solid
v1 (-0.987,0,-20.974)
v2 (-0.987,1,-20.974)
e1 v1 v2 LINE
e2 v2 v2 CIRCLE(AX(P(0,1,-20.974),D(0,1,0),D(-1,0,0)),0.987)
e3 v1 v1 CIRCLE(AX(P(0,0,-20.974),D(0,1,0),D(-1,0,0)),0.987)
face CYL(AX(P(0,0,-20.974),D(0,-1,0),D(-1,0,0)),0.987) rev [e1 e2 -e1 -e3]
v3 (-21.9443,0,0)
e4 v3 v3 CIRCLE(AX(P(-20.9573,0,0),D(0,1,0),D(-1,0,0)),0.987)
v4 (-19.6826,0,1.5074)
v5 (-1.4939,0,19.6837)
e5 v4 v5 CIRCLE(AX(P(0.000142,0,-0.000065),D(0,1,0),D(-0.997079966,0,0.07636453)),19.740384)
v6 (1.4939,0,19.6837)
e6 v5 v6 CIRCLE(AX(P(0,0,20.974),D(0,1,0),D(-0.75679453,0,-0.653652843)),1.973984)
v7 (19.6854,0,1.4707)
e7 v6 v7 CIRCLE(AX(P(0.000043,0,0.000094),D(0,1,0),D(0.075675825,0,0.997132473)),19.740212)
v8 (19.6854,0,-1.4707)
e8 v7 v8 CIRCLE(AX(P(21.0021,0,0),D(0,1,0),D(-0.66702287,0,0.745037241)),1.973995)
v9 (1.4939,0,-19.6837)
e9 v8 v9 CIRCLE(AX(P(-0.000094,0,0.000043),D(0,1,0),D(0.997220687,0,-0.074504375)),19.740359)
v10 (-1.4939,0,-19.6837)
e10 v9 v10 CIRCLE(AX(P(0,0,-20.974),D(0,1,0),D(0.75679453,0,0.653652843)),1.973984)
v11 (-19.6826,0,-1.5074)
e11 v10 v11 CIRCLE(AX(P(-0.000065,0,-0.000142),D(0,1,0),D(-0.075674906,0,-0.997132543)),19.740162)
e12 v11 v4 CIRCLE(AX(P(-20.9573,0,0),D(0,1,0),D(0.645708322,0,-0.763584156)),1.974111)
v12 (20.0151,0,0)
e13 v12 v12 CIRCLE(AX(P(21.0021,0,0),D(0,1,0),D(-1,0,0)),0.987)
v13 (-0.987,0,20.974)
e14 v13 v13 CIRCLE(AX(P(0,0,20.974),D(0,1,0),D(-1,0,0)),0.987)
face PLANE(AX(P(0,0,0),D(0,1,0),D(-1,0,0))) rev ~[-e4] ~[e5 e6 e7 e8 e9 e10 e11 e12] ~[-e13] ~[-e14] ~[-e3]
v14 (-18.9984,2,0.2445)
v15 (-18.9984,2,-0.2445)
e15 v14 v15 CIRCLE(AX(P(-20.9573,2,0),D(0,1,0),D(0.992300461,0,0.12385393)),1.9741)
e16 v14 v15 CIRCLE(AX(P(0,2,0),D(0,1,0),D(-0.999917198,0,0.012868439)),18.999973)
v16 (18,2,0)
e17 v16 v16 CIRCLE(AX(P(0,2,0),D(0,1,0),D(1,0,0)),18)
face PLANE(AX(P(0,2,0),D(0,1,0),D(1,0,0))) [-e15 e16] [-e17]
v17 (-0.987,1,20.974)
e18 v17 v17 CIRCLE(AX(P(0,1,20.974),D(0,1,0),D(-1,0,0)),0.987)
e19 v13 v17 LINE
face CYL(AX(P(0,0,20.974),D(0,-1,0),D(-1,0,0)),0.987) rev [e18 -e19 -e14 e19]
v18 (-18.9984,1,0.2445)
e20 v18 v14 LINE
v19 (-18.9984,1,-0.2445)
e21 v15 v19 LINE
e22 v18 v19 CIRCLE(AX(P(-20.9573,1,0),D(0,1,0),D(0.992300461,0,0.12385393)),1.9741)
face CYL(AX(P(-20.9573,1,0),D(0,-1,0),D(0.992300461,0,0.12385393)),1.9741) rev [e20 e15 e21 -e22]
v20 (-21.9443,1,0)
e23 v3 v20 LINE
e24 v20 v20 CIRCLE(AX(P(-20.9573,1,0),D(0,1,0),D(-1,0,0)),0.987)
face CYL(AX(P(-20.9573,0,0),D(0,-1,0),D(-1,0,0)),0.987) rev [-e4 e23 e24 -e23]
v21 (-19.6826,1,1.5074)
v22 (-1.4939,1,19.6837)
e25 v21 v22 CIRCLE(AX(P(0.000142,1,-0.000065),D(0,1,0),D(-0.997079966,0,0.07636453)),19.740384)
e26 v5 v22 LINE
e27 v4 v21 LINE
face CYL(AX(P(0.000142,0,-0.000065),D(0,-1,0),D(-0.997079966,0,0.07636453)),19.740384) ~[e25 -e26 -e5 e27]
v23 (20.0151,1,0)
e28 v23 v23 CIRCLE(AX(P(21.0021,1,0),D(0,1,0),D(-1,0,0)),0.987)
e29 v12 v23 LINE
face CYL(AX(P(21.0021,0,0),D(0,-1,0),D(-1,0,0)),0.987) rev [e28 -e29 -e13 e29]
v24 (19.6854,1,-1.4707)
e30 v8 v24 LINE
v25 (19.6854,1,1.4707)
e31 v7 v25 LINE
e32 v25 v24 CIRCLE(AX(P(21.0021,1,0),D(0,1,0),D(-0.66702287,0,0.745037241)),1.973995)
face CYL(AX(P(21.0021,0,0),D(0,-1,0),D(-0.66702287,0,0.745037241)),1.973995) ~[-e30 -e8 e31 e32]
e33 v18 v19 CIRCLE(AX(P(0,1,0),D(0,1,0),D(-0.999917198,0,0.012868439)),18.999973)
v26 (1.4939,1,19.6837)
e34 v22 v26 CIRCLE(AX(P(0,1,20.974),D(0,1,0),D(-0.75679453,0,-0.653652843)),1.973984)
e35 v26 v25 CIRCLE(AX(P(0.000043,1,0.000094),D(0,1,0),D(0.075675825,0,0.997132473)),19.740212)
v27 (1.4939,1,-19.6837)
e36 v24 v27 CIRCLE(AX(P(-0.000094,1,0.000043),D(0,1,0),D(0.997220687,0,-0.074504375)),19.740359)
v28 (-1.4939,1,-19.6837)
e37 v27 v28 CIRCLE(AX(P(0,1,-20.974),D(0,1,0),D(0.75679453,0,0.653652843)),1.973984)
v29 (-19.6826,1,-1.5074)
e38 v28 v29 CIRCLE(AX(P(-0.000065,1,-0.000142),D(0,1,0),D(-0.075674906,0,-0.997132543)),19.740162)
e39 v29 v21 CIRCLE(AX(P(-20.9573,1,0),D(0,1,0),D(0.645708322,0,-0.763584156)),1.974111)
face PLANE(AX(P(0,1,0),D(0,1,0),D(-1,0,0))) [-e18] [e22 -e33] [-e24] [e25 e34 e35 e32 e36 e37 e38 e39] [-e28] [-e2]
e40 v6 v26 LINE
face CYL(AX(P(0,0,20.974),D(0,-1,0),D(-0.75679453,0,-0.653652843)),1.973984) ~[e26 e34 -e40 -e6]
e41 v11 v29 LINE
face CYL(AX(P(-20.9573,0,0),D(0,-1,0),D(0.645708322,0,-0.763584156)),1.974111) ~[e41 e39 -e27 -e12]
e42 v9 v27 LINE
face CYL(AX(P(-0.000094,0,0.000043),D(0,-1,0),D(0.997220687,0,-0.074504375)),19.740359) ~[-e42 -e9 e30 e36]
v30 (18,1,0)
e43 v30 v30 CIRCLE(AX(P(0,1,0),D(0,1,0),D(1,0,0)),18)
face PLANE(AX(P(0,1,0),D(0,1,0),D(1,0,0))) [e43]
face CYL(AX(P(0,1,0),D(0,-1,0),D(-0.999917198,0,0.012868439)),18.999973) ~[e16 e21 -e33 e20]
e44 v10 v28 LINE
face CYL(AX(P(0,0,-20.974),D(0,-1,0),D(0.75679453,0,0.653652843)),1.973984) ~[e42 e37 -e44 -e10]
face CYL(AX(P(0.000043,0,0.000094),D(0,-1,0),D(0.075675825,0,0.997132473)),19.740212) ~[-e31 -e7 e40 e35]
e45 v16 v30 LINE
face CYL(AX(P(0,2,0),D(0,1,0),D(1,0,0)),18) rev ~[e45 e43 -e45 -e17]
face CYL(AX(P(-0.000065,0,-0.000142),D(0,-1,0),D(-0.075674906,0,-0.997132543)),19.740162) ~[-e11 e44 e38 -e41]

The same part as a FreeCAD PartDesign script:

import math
import FreeCAD as App
import Part
import Sketcher
from FreeCAD import Vector
Q = App.Units.Quantity

doc = App.newDocument("Part")
body = doc.addObject("PartDesign::Body", "Body")

sketch1 = doc.addObject("Sketcher::SketchObject", "Sketch")
body.addObject(sketch1)
sketch1.AttachmentSupport = (doc.XZ_Plane, [""])
sketch1.MapMode = "FlatFace"
sketch1.addGeometry(Part.ArcOfCircle(Part.Circle(Vector(0, 20.97, 0), Vector(0, 0, 1), 1.97), math.radians(-41), math.radians(221)), False)
sketch1.addGeometry(Part.ArcOfCircle(Part.Circle(Vector(0, 0, 0), Vector(0, 0, 1), 19.74), math.radians(4), math.radians(86)), False)
sketch1.addGeometry(Part.ArcOfCircle(Part.Circle(Vector(21, 0, 0), Vector(0, 0, 1), 1.97), math.radians(-132), math.radians(132)), False)
sketch1.addGeometry(Part.ArcOfCircle(Part.Circle(Vector(0, 0, 0), Vector(0, 0, 1), 19.74), math.radians(-86), math.radians(-4)), False)
sketch1.addGeometry(Part.ArcOfCircle(Part.Circle(Vector(0, -20.97, 0), Vector(0, 0, 1), 1.97), math.radians(139), math.radians(401)), False)
sketch1.addGeometry(Part.ArcOfCircle(Part.Circle(Vector(0, 0, 0), Vector(0, 0, 1), 19.74), math.radians(-176), math.radians(-94)), False)
sketch1.addGeometry(Part.ArcOfCircle(Part.Circle(Vector(-20.96, 0, 0), Vector(0, 0, 1), 1.97), math.radians(50), math.radians(310)), False)
sketch1.addGeometry(Part.ArcOfCircle(Part.Circle(Vector(0, 0, 0), Vector(0, 0, 1), 19.74), math.radians(94), math.radians(176)), False)
sketch1.addGeometry(Part.Circle(Vector(21, 0, 0), Vector(0, 0, 1), 0.99), False)
sketch1.addGeometry(Part.Circle(Vector(0, -20.97, 0), Vector(0, 0, 1), 0.99), False)
sketch1.addGeometry(Part.ArcOfCircle(Part.Circle(Vector(0, 0, 0), Vector(0, 0, 1), 19), math.radians(-179), math.radians(179)), False)
sketch1.addGeometry(Part.ArcOfCircle(Part.Circle(Vector(-20.96, 0, 0), Vector(0, 0, 1), 1.97), math.radians(-7.11), math.radians(7.11)), False)
sketch1.addGeometry(Part.Circle(Vector(-20.96, 0, 0), Vector(0, 0, 1), 0.99), False)
sketch1.addGeometry(Part.Circle(Vector(0, 20.97, 0), Vector(0, 0, 1), 0.99), False)
sketch1.addConstraint(Sketcher.Constraint("Coincident", 0, 1, 1, 2))
sketch1.addConstraint(Sketcher.Constraint("Coincident", 1, 1, 2, 2))
sketch1.addConstraint(Sketcher.Constraint("Coincident", 2, 1, 3, 2))
sketch1.addConstraint(Sketcher.Constraint("Coincident", 3, 1, 4, 2))
sketch1.addConstraint(Sketcher.Constraint("Coincident", 4, 1, 5, 2))
sketch1.addConstraint(Sketcher.Constraint("Coincident", 5, 1, 6, 2))
sketch1.addConstraint(Sketcher.Constraint("Coincident", 6, 1, 7, 2))
sketch1.addConstraint(Sketcher.Constraint("Coincident", 7, 1, 0, 2))
sketch1.addConstraint(Sketcher.Constraint("Coincident", 10, 1, 11, 1))
sketch1.addConstraint(Sketcher.Constraint("Coincident", 11, 2, 10, 2))
sketch1.addConstraint(Sketcher.Constraint("Coincident", 1, 3, -1, 1))
sketch1.addConstraint(Sketcher.Constraint("Coincident", 3, 3, -1, 1))
sketch1.addConstraint(Sketcher.Constraint("Coincident", 5, 3, -1, 1))
sketch1.addConstraint(Sketcher.Constraint("Coincident", 7, 3, -1, 1))
sketch1.addConstraint(Sketcher.Constraint("Coincident", 10, 3, -1, 1))
sketch1.addConstraint(Sketcher.Constraint("Coincident", 8, 3, 2, 3))
sketch1.addConstraint(Sketcher.Constraint("Coincident", 9, 3, 4, 3))
sketch1.addConstraint(Sketcher.Constraint("Coincident", 11, 3, 6, 3))
sketch1.addConstraint(Sketcher.Constraint("Coincident", 12, 3, 6, 3))
sketch1.addConstraint(Sketcher.Constraint("Coincident", 13, 3, 0, 3))
sketch1.addConstraint(Sketcher.Constraint("Equal", 0, 2))
sketch1.addConstraint(Sketcher.Constraint("Equal", 1, 3))
sketch1.addConstraint(Sketcher.Constraint("Equal", 2, 4))
sketch1.addConstraint(Sketcher.Constraint("Equal", 3, 5))
sketch1.addConstraint(Sketcher.Constraint("Equal", 4, 6))
sketch1.addConstraint(Sketcher.Constraint("Equal", 5, 7))
sketch1.addConstraint(Sketcher.Constraint("Equal", 8, 9))
sketch1.addConstraint(Sketcher.Constraint("Equal", 6, 11))
sketch1.addConstraint(Sketcher.Constraint("Equal", 9, 12))
sketch1.addConstraint(Sketcher.Constraint("Equal", 12, 13))
sketch1.addConstraint(Sketcher.Constraint("Symmetric", 0, 3, 4, 3, -1, 1))
sketch1.addConstraint(Sketcher.Constraint("PointOnObject", 0, 3, -2))
sketch1.addConstraint(Sketcher.Constraint("PointOnObject", 2, 3, -1))
sketch1.addConstraint(Sketcher.Constraint("PointOnObject", 6, 3, -1))
sketch1.addConstraint(Sketcher.Constraint("Radius", 10, Q("19 mm")))
sketch1.addConstraint(Sketcher.Constraint("Diameter", 8, Q("1.974 mm")))
sketch1.addConstraint(Sketcher.Constraint("Radius", 0, Q("1.974 mm")))
sketch1.addConstraint(Sketcher.Constraint("Radius", 1, Q("19.7402 mm")))
sketch1.addConstraint(Sketcher.Constraint("DistanceY", -1, 1, 0, 3, Q("20.974 mm")))
sketch1.addConstraint(Sketcher.Constraint("DistanceX", -1, 1, 2, 3, Q("21.002 mm")))
sketch1.addConstraint(Sketcher.Constraint("DistanceY", 5, 1, 10, 1, Q("1.263 mm")))
pad1 = doc.addObject("PartDesign::Pad", "Pad")
body.addObject(pad1)
pad1.Profile = sketch1
pad1.Length = 1
pad1.Reversed = True

sketch2 = doc.addObject("Sketcher::SketchObject", "Sketch001")
body.addObject(sketch2)
sketch2.AttachmentSupport = (doc.XZ_Plane, [""])
sketch2.MapMode = "FlatFace"
sketch2.AttachmentOffset = App.Placement(Vector(0, 0, -1), App.Rotation())
sketch2.addGeometry(Part.ArcOfCircle(Part.Circle(Vector(-20.96, 0, 0), Vector(0, 0, 1), 1.97), math.radians(-7.11), math.radians(7.11)), False)
sketch2.addGeometry(Part.ArcOfCircle(Part.Circle(Vector(0, 0, 0), Vector(0, 0, 1), 19), math.radians(-179), math.radians(179)), False)
sketch2.addConstraint(Sketcher.Constraint("Coincident", 0, 1, 1, 1))
sketch2.addConstraint(Sketcher.Constraint("Coincident", 1, 2, 0, 2))
sketch2.addConstraint(Sketcher.Constraint("Coincident", 1, 3, -1, 1))
sketch2.addConstraint(Sketcher.Constraint("PointOnObject", 0, 3, -1))
sketch2.addConstraint(Sketcher.Constraint("Radius", 1, Q("19 mm")))
sketch2.addConstraint(Sketcher.Constraint("Radius", 0, Q("1.974 mm")))
sketch2.addConstraint(Sketcher.Constraint("DistanceX", 0, 3, 0, 1, Q("1.959 mm")))
pad2 = doc.addObject("PartDesign::Pad", "Pad001")
body.addObject(pad2)
pad2.Profile = sketch2
pad2.Length = 2
pad2.Midplane = True

sketch3 = doc.addObject("Sketcher::SketchObject", "Sketch002")
body.addObject(sketch3)
sketch3.AttachmentSupport = (doc.XZ_Plane, [""])
sketch3.MapMode = "FlatFace"
sketch3.AttachmentOffset = App.Placement(Vector(0, 0, -2), App.Rotation())
sketch3.addGeometry(Part.Circle(Vector(0, 0, 0), Vector(0, 0, 1), 18), False)
sketch3.addConstraint(Sketcher.Constraint("Coincident", 0, 3, -1, 1))
sketch3.addConstraint(Sketcher.Constraint("Diameter", 0, Q("36 mm")))
pocket1 = doc.addObject("PartDesign::Pocket", "Pocket")
body.addObject(pocket1)
pocket1.Profile = sketch3
pocket1.Length = 1
pocket1.Reversed = True

doc.recompute()
